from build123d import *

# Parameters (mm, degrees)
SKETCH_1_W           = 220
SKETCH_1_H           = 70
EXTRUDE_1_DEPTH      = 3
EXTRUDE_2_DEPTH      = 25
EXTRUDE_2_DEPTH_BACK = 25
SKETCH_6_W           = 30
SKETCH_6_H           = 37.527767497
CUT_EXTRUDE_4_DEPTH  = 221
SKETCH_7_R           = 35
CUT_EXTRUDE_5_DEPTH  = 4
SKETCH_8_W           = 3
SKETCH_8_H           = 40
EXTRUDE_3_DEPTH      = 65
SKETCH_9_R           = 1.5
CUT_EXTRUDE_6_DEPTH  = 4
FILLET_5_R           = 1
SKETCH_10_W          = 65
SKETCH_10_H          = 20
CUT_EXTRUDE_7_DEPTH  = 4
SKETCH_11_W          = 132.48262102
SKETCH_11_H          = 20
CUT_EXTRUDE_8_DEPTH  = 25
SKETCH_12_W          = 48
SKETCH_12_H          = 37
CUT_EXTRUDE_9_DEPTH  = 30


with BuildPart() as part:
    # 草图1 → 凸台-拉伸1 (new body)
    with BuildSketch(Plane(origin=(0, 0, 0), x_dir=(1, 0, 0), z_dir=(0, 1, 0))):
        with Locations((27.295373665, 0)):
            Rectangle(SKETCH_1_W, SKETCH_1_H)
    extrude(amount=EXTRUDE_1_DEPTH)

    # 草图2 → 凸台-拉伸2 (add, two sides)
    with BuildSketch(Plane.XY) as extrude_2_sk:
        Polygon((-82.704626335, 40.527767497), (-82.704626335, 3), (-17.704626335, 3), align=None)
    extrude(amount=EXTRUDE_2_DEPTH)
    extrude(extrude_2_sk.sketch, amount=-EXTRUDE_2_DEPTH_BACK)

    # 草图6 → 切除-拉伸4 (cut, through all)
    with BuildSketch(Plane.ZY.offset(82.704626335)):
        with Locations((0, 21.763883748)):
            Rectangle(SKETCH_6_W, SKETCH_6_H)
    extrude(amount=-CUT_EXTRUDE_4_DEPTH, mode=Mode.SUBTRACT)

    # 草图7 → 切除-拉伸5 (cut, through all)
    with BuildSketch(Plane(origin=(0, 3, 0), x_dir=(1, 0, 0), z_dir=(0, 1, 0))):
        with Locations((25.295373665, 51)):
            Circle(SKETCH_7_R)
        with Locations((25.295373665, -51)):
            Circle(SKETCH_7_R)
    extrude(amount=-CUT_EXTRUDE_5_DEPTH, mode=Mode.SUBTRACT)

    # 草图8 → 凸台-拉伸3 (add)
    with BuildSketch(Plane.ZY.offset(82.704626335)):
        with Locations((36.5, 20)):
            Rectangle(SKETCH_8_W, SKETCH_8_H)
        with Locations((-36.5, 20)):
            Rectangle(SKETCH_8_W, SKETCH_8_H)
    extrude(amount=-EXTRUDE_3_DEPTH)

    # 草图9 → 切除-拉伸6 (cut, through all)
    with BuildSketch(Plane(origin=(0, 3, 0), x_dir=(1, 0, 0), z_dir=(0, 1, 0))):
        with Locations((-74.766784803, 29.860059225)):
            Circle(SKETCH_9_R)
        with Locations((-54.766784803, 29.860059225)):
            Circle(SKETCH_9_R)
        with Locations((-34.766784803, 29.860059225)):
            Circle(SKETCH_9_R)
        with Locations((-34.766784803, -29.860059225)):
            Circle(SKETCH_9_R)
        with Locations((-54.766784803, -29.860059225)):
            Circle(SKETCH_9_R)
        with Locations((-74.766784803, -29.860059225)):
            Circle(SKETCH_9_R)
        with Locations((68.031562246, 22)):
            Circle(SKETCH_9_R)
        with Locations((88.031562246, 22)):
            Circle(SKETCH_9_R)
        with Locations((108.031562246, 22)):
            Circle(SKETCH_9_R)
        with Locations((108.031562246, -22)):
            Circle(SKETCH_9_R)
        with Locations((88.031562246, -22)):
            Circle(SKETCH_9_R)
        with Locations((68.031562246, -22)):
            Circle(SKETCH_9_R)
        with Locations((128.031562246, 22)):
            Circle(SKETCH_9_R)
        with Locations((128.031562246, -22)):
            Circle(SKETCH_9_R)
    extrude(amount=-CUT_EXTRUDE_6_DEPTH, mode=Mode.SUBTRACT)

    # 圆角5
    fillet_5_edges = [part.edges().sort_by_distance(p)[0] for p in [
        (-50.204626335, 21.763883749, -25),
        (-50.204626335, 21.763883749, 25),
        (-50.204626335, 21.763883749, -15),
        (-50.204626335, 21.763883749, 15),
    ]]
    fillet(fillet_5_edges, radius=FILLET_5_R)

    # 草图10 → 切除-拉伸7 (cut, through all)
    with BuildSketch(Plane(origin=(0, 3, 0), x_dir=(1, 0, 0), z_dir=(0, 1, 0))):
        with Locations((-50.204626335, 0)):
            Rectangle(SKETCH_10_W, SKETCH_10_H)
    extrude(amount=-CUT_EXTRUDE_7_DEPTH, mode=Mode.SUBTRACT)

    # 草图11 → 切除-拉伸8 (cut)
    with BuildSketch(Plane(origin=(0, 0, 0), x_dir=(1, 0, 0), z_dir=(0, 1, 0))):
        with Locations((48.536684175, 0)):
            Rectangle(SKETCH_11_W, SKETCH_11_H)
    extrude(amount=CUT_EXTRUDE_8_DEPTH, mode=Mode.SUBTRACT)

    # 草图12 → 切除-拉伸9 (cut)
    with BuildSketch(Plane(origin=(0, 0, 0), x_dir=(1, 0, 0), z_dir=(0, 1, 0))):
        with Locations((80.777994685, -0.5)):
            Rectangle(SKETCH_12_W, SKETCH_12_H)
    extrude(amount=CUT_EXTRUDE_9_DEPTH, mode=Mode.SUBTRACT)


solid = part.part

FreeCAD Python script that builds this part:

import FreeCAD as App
import Part
import Sketcher
Q = App.Units.Quantity


def edges_at(feature, points):
    """Names of the edges that pass closest to the given points."""
    edges = feature.Shape.Edges
    near = lambda p: min(range(len(edges)), key=lambda i: edges[i].distToShape(Part.Vertex(*p))[0])
    return sorted({f"Edge{near(p) + 1}" for p in points})

doc = App.newDocument("Part")
body = doc.addObject("PartDesign::Body", "Body")

# Sketch on XZ plane
sketch1 = body.newObject("Sketcher::SketchObject", "Sketch")
sketch1.AttachmentSupport = (doc.getObject("XZ_Plane"), [""])
sketch1.MapMode = "FlatFace"
sketch1.addGeometry([
    Part.LineSegment(App.Vector(-83, -35, 0), App.Vector(-83, 35, 0)),
    Part.LineSegment(App.Vector(-83, 35, 0), App.Vector(137, 35, 0)),
    Part.LineSegment(App.Vector(137, 35, 0), App.Vector(137, -35, 0)),
    Part.LineSegment(App.Vector(137, -35, 0), App.Vector(-83, -35, 0)),
], False)
sketch1.addConstraint([
    Sketcher.Constraint("Coincident", 0, 2, 1, 1),
    Sketcher.Constraint("Coincident", 1, 2, 2, 1),
    Sketcher.Constraint("Coincident", 2, 2, 3, 1),
    Sketcher.Constraint("Coincident", 3, 2, 0, 1),
    Sketcher.Constraint("Vertical", 0),
    Sketcher.Constraint("Horizontal", 1),
    Sketcher.Constraint("Vertical", 2),
    Sketcher.Constraint("Horizontal", 3),
    Sketcher.Constraint("DistanceX", 1, 1, 1, 2, 220.0),
    Sketcher.Constraint("DistanceY", 0, 1, 0, 2, 70.0),
    Sketcher.Constraint("DistanceY", -1, 1, 0, 2, 35.0),
    Sketcher.Constraint("DistanceX", 0, 2, -1, 1, 82.704626),
])
pad1 = body.newObject("PartDesign::Pad", "Pad")
pad1.Profile = sketch1
pad1.Length = 3
pad1.Reversed = True

# Sketch on XY plane
sketch2 = body.newObject("Sketcher::SketchObject", "Sketch001")
sketch2.AttachmentSupport = (doc.getObject("XY_Plane"), [""])
sketch2.MapMode = "FlatFace"
sketch2.addGeometry([
    Part.LineSegment(App.Vector(-83, 41, 0), App.Vector(-83, 3, 0)),
    Part.LineSegment(App.Vector(-83, 3, 0), App.Vector(-18, 3, 0)),
    Part.LineSegment(App.Vector(-18, 3, 0), App.Vector(-83, 41, 0)),
], False)
sketch2.addConstraint([
    Sketcher.Constraint("Coincident", 0, 2, 1, 1),
    Sketcher.Constraint("Coincident", 1, 2, 2, 1),
    Sketcher.Constraint("Coincident", 2, 2, 0, 1),
    Sketcher.Constraint("Vertical", 0),
    Sketcher.Constraint("Horizontal", 1),
    Sketcher.Constraint("DistanceX", 1, 1, 1, 2, 65.0),
    Sketcher.Constraint("Angle", 2, Q("150 deg")),
    Sketcher.Constraint("DistanceY", -1, 1, 0, 2, 3.0),
    Sketcher.Constraint("DistanceX", 0, 2, -1, 1, 82.704626),
])
pad2 = body.newObject("PartDesign::Pad", "Pad001")
pad2.Profile = sketch2
pad2.Type = "TwoLengths"
pad2.Length = 25
pad2.Length2 = 25

# Sketch on YZ plane
sketch3 = body.newObject("Sketcher::SketchObject", "Sketch002")
sketch3.AttachmentSupport = (doc.getObject("YZ_Plane"), [""])
sketch3.MapMode = "FlatFace"
sketch3.AttachmentOffset = App.Placement(App.Vector(0, 0, -82.704626), App.Rotation())
sketch3.addGeometry([
    Part.LineSegment(App.Vector(41, -15, 0), App.Vector(3, -15, 0)),
    Part.LineSegment(App.Vector(3, -15, 0), App.Vector(3, 15, 0)),
    Part.LineSegment(App.Vector(3, 15, 0), App.Vector(41, 15, 0)),
    Part.LineSegment(App.Vector(41, 15, 0), App.Vector(41, -15, 0)),
], False)
sketch3.addConstraint([
    Sketcher.Constraint("Coincident", 0, 2, 1, 1),
    Sketcher.Constraint("Coincident", 1, 2, 2, 1),
    Sketcher.Constraint("Coincident", 2, 2, 3, 1),
    Sketcher.Constraint("Coincident", 3, 2, 0, 1),
    Sketcher.Constraint("Horizontal", 0),
    Sketcher.Constraint("Vertical", 1),
    Sketcher.Constraint("Horizontal", 2),
    Sketcher.Constraint("Vertical", 3),
    Sketcher.Constraint("DistanceY", 1, 1, 1, 2, 30.0),
    Sketcher.Constraint("DistanceX", -1, 1, 0, 2, 3.0),
    Sketcher.Constraint("DistanceY", 0, 2, -1, 1, 15.0),
    Sketcher.Constraint("DistanceX", 0, 2, 0, 1, 37.527767),
])
pocket1 = body.newObject("PartDesign::Pocket", "Pocket")
pocket1.Profile = sketch3
pocket1.Type = "ThroughAll"
pocket1.Reversed = True

# Sketch on XZ plane
sketch4 = body.newObject("Sketcher::SketchObject", "Sketch003")
sketch4.AttachmentSupport = (doc.getObject("XZ_Plane"), [""])
sketch4.MapMode = "FlatFace"
sketch4.AttachmentOffset = App.Placement(App.Vector(0, 0, -3), App.Rotation())
sketch4.addGeometry([
    Part.Circle(App.Vector(25, -51, 0), App.Vector(0, 0, 1), 35),
    Part.Circle(App.Vector(25, 51, 0), App.Vector(0, 0, 1), 35),
], False)
sketch4.addConstraint([
    Sketcher.Constraint("Equal", 0, 1),
    Sketcher.Constraint("Symmetric", 0, 3, 1, 3, -1),
    Sketcher.Constraint("Diameter", 0, 70.0),
    Sketcher.Constraint("DistanceY", 0, 3, -1, 1, 51.0),
    Sketcher.Constraint("DistanceX", -1, 1, 0, 3, 25.295374),
])
pocket2 = body.newObject("PartDesign::Pocket", "Pocket001")
pocket2.Profile = sketch4
pocket2.Type = "ThroughAll"
pocket2.Reversed = True

# Sketch on YZ plane
sketch5 = body.newObject("Sketcher::SketchObject", "Sketch004")
sketch5.AttachmentSupport = (doc.getObject("YZ_Plane"), [""])
sketch5.MapMode = "FlatFace"
sketch5.AttachmentOffset = App.Placement(App.Vector(0, 0, -82.704626), App.Rotation())
sketch5.addGeometry([
    Part.LineSegment(App.Vector(40, 35, 0), App.Vector(0, 35, 0)),  # 0
    Part.LineSegment(App.Vector(0, 35, 0), App.Vector(0, 38, 0)),  # 1
    Part.LineSegment(App.Vector(0, 38, 0), App.Vector(40, 38, 0)),  # 2
    Part.LineSegment(App.Vector(40, 38, 0), App.Vector(40, 35, 0)),  # 3
    Part.LineSegment(App.Vector(40, -38, 0), App.Vector(0, -38, 0)),  # 4
    Part.LineSegment(App.Vector(0, -38, 0), App.Vector(0, -35, 0)),  # 5
    Part.LineSegment(App.Vector(0, -35, 0), App.Vector(40, -35, 0)),  # 6
    Part.LineSegment(App.Vector(40, -35, 0), App.Vector(40, -38, 0)),  # 7
], False)
sketch5.addConstraint([
    Sketcher.Constraint("Coincident", 0, 2, 1, 1),
    Sketcher.Constraint("Coincident", 1, 2, 2, 1),
    Sketcher.Constraint("Coincident", 2, 2, 3, 1),
    Sketcher.Constraint("Coincident", 3, 2, 0, 1),
    Sketcher.Constraint("Coincident", 4, 2, 5, 1),
    Sketcher.Constraint("Coincident", 5, 2, 6, 1),
    Sketcher.Constraint("Coincident", 6, 2, 7, 1),
    Sketcher.Constraint("Coincident", 7, 2, 4, 1),
    Sketcher.Constraint("Horizontal", 0),
    Sketcher.Constraint("Vertical", 1),
    Sketcher.Constraint("Horizontal", 2),
    Sketcher.Constraint("Vertical", 3),
    Sketcher.Constraint("Horizontal", 4),
    Sketcher.Constraint("Vertical", 5),
    Sketcher.Constraint("Horizontal", 6),
    Sketcher.Constraint("Vertical", 7),
    Sketcher.Constraint("Symmetric", 1, 2, 4, 2, -1, 1),
    Sketcher.Constraint("Symmetric", 0, 2, 5, 2, -1),
    Sketcher.Constraint("Vertical", 3, 2, 6, 2),
    Sketcher.Constraint("DistanceX", 0, 2, 0, 1, 40.0),
    Sketcher.Constraint("DistanceY", 1, 1, 1, 2, 3.0),
    Sketcher.Constraint("DistanceY", -1, 1, 0, 2, 35.0),
])
pad3 = body.newObject("PartDesign::Pad", "Pad002")
pad3.Profile = sketch5
pad3.Length = 65

# Sketch on XZ plane
sketch6 = body.newObject("Sketcher::SketchObject", "Sketch005")
sketch6.AttachmentSupport = (doc.getObject("XZ_Plane"), [""])
sketch6.MapMode = "FlatFace"
sketch6.AttachmentOffset = App.Placement(App.Vector(0, 0, -3), App.Rotation())
sketch6.addGeometry([
    Part.Circle(App.Vector(-74.8, -29.9, 0), App.Vector(0, 0, 1), 1.5),  # 0
    Part.Circle(App.Vector(-54.8, -29.9, 0), App.Vector(0, 0, 1), 1.5),  # 1
    Part.Circle(App.Vector(-34.8, -29.9, 0), App.Vector(0, 0, 1), 1.5),  # 2
    Part.Circle(App.Vector(-34.8, 29.9, 0), App.Vector(0, 0, 1), 1.5),  # 3
    Part.Circle(App.Vector(-54.8, 29.9, 0), App.Vector(0, 0, 1), 1.5),  # 4
    Part.Circle(App.Vector(-74.8, 29.9, 0), App.Vector(0, 0, 1), 1.5),  # 5
    Part.Circle(App.Vector(68, -22, 0), App.Vector(0, 0, 1), 1.5),  # 6
    Part.Circle(App.Vector(88, -22, 0), App.Vector(0, 0, 1), 1.5),  # 7
    Part.Circle(App.Vector(108, -22, 0), App.Vector(0, 0, 1), 1.5),  # 8
    Part.Circle(App.Vector(108, 22, 0), App.Vector(0, 0, 1), 1.5),  # 9
    Part.Circle(App.Vector(88, 22, 0), App.Vector(0, 0, 1), 1.5),  # 10
    Part.Circle(App.Vector(68, 22, 0), App.Vector(0, 0, 1), 1.5),  # 11
    Part.Circle(App.Vector(128, -22, 0), App.Vector(0, 0, 1), 1.5),  # 12
    Part.Circle(App.Vector(128, 22, 0), App.Vector(0, 0, 1), 1.5),  # 13
], False)
sketch6.addConstraint([
    Sketcher.Constraint("Equal", 0, 1),
    Sketcher.Constraint("Equal", 1, 2),
    Sketcher.Constraint("Equal", 2, 3),
    Sketcher.Constraint("Equal", 3, 4),
    Sketcher.Constraint("Equal", 4, 5),
    Sketcher.Constraint("Equal", 5, 6),
    Sketcher.Constraint("Equal", 6, 7),
    Sketcher.Constraint("Equal", 7, 8),
    Sketcher.Constraint("Equal", 8, 9),
    Sketcher.Constraint("Equal", 9, 10),
    Sketcher.Constraint("Equal", 10, 11),
    Sketcher.Constraint("Equal", 11, 12),
    Sketcher.Constraint("Equal", 12, 13),
    Sketcher.Constraint("Symmetric", 2, 3, 3, 3, -1),
    Sketcher.Constraint("Symmetric", 1, 3, 4, 3, -1),
    Sketcher.Constraint("Symmetric", 0, 3, 5, 3, -1),
    Sketcher.Constraint("Symmetric", 8, 3, 9, 3, -1),
    Sketcher.Constraint("Symmetric", 7, 3, 10, 3, -1),
    Sketcher.Constraint("Symmetric", 6, 3, 11, 3, -1),
    Sketcher.Constraint("Symmetric", 12, 3, 13, 3, -1),
    Sketcher.Constraint("Horizontal", 0, 3, 1, 3),
    Sketcher.Constraint("Horizontal", 1, 3, 2, 3),
    Sketcher.Constraint("Horizontal", 6, 3, 7, 3),
    Sketcher.Constraint("Horizontal", 7, 3, 8, 3),
    Sketcher.Constraint("Horizontal", 8, 3, 12, 3),
    Sketcher.Constraint("Diameter", 0, 3.0),
    Sketcher.Constraint("DistanceY", 6, 3, -1, 1, 22.0),
    Sketcher.Constraint("DistanceX", 0, 3, 1, 3, 20.0),
    Sketcher.Constraint("DistanceX", 1, 3, 2, 3, 20.0),
    Sketcher.Constraint("DistanceX", 6, 3, 7, 3, 20.0),
    Sketcher.Constraint("DistanceX", 7, 3, 8, 3, 20.0),
    Sketcher.Constraint("DistanceX", 8, 3, 12, 3, 20.0),
    Sketcher.Constraint("DistanceY", 0, 3, -1, 1, 29.860059),
    Sketcher.Constraint("DistanceX", 0, 3, -1, 1, 74.766785),
    Sketcher.Constraint("DistanceX", -1, 1, 6, 3, 68.031562),
])
pocket3 = body.newObject("PartDesign::Pocket", "Pocket002")
pocket3.Profile = sketch6
pocket3.Type = "ThroughAll"
pocket3.Reversed = True
doc.recompute()

fillet = body.newObject("PartDesign::Fillet", "Fillet")
fillet.Base = (pocket3, edges_at(pocket3, [
    (-50.205, 21.764, -25),
    (-50.205, 21.764, 25),
    (-50.205, 21.764, -15),
    (-50.205, 21.764, 15),
]))
fillet.Radius = 1

# Sketch on XZ plane
sketch7 = body.newObject("Sketcher::SketchObject", "Sketch006")
sketch7.AttachmentSupport = (doc.getObject("XZ_Plane"), [""])
sketch7.MapMode = "FlatFace"
sketch7.AttachmentOffset = App.Placement(App.Vector(0, 0, -3), App.Rotation())
sketch7.addGeometry([
    Part.LineSegment(App.Vector(-83, -10, 0), App.Vector(-83, 10, 0)),
    Part.LineSegment(App.Vector(-83, 10, 0), App.Vector(-18, 10, 0)),
    Part.LineSegment(App.Vector(-18, 10, 0), App.Vector(-18, -10, 0)),
    Part.LineSegment(App.Vector(-18, -10, 0), App.Vector(-83, -10, 0)),
], False)
sketch7.addConstraint([
    Sketcher.Constraint("Coincident", 0, 2, 1, 1),
    Sketcher.Constraint("Coincident", 1, 2, 2, 1),
    Sketcher.Constraint("Coincident", 2, 2, 3, 1),
    Sketcher.Constraint("Coincident", 3, 2, 0, 1),
    Sketcher.Constraint("Vertical", 0),
    Sketcher.Constraint("Horizontal", 1),
    Sketcher.Constraint("Vertical", 2),
    Sketcher.Constraint("Horizontal", 3),
    Sketcher.Constraint("DistanceX", 1, 1, 1, 2, 65.0),
    Sketcher.Constraint("DistanceY", 0, 1, 0, 2, 20.0),
    Sketcher.Constraint("DistanceY", -1, 1, 0, 2, 10.0),
    Sketcher.Constraint("DistanceX", 0, 2, -1, 1, 82.704626),
])
pocket4 = body.newObject("PartDesign::Pocket", "Pocket003")
pocket4.Profile = sketch7
pocket4.Type = "ThroughAll"
pocket4.Reversed = True

# Sketch on XZ plane
sketch8 = body.newObject("Sketcher::SketchObject", "Sketch007")
sketch8.AttachmentSupport = (doc.getObject("XZ_Plane"), [""])
sketch8.MapMode = "FlatFace"
sketch8.addGeometry([
    Part.LineSegment(App.Vector(-18, -10, 0), App.Vector(-18, 10, 0)),
    Part.LineSegment(App.Vector(-18, 10, 0), App.Vector(115, 10, 0)),
    Part.LineSegment(App.Vector(115, 10, 0), App.Vector(115, -10, 0)),
    Part.LineSegment(App.Vector(115, -10, 0), App.Vector(-18, -10, 0)),
], False)
sketch8.addConstraint([
    Sketcher.Constraint("Coincident", 0, 2, 1, 1),
    Sketcher.Constraint("Coincident", 1, 2, 2, 1),
    Sketcher.Constraint("Coincident", 2, 2, 3, 1),
    Sketcher.Constraint("Coincident", 3, 2, 0, 1),
    Sketcher.Constraint("Vertical", 0),
    Sketcher.Constraint("Horizontal", 1),
    Sketcher.Constraint("Vertical", 2),
    Sketcher.Constraint("Horizontal", 3),
    Sketcher.Constraint("DistanceY", 0, 1, 0, 2, 20.0),
    Sketcher.Constraint("DistanceY", -1, 1, 0, 2, 10.0),
    Sketcher.Constraint("DistanceX", 1, 1, 1, 2, 132.482621),
    Sketcher.Constraint("DistanceX", 0, 2, -1, 1, 17.704626),
])
pocket5 = body.newObject("PartDesign::Pocket", "Pocket004")
pocket5.Profile = sketch8
pocket5.Length = 25

# Sketch on XZ plane
sketch9 = body.newObject("Sketcher::SketchObject", "Sketch008")
sketch9.AttachmentSupport = (doc.getObject("XZ_Plane"), [""])
sketch9.MapMode = "FlatFace"
sketch9.addGeometry([
    Part.LineSegment(App.Vector(57, -18, 0), App.Vector(57, 19, 0)),
    Part.LineSegment(App.Vector(57, 19, 0), App.Vector(105, 19, 0)),
    Part.LineSegment(App.Vector(105, 19, 0), App.Vector(105, -18, 0)),
    Part.LineSegment(App.Vector(105, -18, 0), App.Vector(57, -18, 0)),
], False)
sketch9.addConstraint([
    Sketcher.Constraint("Coincident", 0, 2, 1, 1),
    Sketcher.Constraint("Coincident", 1, 2, 2, 1),
    Sketcher.Constraint("Coincident", 2, 2, 3, 1),
    Sketcher.Constraint("Coincident", 3, 2, 0, 1),
    Sketcher.Constraint("Vertical", 0),
    Sketcher.Constraint("Horizontal", 1),
    Sketcher.Constraint("Vertical", 2),
    Sketcher.Constraint("Horizontal", 3),
    Sketcher.Constraint("DistanceX", 1, 1, 1, 2, 48.0),
    Sketcher.Constraint("DistanceY", 0, 1, 0, 2, 37.0),
    Sketcher.Constraint("DistanceY", -1, 1, 0, 2, 19.0),
    Sketcher.Constraint("DistanceX", -1, 1, 0, 2, 56.777995),
])
pocket6 = body.newObject("PartDesign::Pocket", "Pocket005")
pocket6.Profile = sketch9
pocket6.Length = 30

doc.recompute()
